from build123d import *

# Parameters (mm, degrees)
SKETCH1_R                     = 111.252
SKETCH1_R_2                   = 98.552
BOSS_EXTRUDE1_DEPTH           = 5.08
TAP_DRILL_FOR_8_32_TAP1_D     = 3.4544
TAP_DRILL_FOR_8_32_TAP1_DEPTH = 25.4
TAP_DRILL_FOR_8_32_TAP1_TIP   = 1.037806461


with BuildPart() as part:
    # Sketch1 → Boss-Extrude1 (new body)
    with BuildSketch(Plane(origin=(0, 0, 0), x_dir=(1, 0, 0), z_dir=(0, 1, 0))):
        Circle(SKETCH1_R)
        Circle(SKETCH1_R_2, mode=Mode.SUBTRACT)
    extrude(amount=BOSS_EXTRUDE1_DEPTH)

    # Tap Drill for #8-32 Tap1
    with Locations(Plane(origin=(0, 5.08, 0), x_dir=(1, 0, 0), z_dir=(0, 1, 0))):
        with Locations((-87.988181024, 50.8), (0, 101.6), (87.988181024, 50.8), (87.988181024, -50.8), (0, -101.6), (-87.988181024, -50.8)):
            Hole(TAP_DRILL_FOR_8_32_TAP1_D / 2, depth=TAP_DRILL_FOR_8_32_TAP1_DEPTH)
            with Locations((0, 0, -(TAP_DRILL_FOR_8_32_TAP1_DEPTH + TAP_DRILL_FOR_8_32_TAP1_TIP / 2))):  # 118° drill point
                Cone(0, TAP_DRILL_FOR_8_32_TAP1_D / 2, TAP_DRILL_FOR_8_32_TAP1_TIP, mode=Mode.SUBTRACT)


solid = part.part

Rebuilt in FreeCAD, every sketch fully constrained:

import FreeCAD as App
import Part
import Sketcher

V = App.Vector
Q = App.Units.Quantity

doc = App.newDocument("Part")
body = doc.addObject("PartDesign::Body", "Body")

# Sketch on XZ plane
sketch1 = doc.addObject("Sketcher::SketchObject", "Sketch")
body.addObject(sketch1)
sketch1.AttachmentSupport = (doc.XZ_Plane, [""])
sketch1.MapMode = "FlatFace"
sketch1.addGeometry(Part.Circle(V(0, 0, 0), V(0, 0, 1), 111), False)
sketch1.addGeometry(Part.Circle(V(0, 0, 0), V(0, 0, 1), 99), False)
sketch1.addConstraint(Sketcher.Constraint("Coincident", 0, 3, -1, 1))
sketch1.addConstraint(Sketcher.Constraint("Coincident", 1, 3, -1, 1))
sketch1.addConstraint(Sketcher.Constraint("Diameter", 0, Q("8.76 in")))
sketch1.addConstraint(Sketcher.Constraint("Diameter", 1, Q("7.76 in")))
pad1 = doc.addObject("PartDesign::Pad", "Pad")
body.addObject(pad1)
pad1.Profile = sketch1
pad1.Length = Q("0.2 in")
pad1.Reversed = True

# Sketch on XZ plane
sketch2 = doc.addObject("Sketcher::SketchObject", "Sketch001")
body.addObject(sketch2)
sketch2.AttachmentSupport = (doc.XZ_Plane, [""])
sketch2.MapMode = "FlatFace"
sketch2.AttachmentOffset = App.Placement(V(0, 0, -0.2 * 25.4), App.Rotation())
sketch2.addGeometry(Part.Circle(V(-88, -50.8, 0), V(0, 0, 1), 1.7), False)
sketch2.addGeometry(Part.Circle(V(0, -101.6, 0), V(0, 0, 1), 1.7), False)
sketch2.addGeometry(Part.Circle(V(88, -50.8, 0), V(0, 0, 1), 1.7), False)
sketch2.addGeometry(Part.Circle(V(88, 50.8, 0), V(0, 0, 1), 1.7), False)
sketch2.addGeometry(Part.Circle(V(0, 101.6, 0), V(0, 0, 1), 1.7), False)
sketch2.addGeometry(Part.Circle(V(-88, 50.8, 0), V(0, 0, 1), 1.7), False)
sketch2.addConstraint(Sketcher.Constraint("Equal", 0, 1))
sketch2.addConstraint(Sketcher.Constraint("Equal", 1, 2))
sketch2.addConstraint(Sketcher.Constraint("Equal", 2, 3))
sketch2.addConstraint(Sketcher.Constraint("Equal", 3, 4))
sketch2.addConstraint(Sketcher.Constraint("Equal", 4, 5))
sketch2.addConstraint(Sketcher.Constraint("Symmetric", 0, 3, 3, 3, -1, 1))
sketch2.addConstraint(Sketcher.Constraint("Symmetric", 1, 3, 4, 3, -1, 1))
sketch2.addConstraint(Sketcher.Constraint("Symmetric", 2, 3, 5, 3, -1, 1))
sketch2.addConstraint(Sketcher.Constraint("Symmetric", 0, 3, 2, 3, -2))
sketch2.addConstraint(Sketcher.Constraint("PointOnObject", 1, 3, -2))
sketch2.addConstraint(Sketcher.Constraint("Diameter", 0, Q("0.136 in")))
sketch2.addConstraint(Sketcher.Constraint("DistanceY", 0, 3, -1, 1, Q("2 in")))
sketch2.addConstraint(Sketcher.Constraint("DistanceY", 1, 3, -1, 1, Q("4 in")))
sketch2.addConstraint(Sketcher.Constraint("DistanceX", 0, 3, -1, 1, Q("87.988181 mm")))
doc.recompute()
hole = doc.addObject("PartDesign::Hole", "Hole")
body.addObject(hole)
hole.Profile = sketch2
hole.ThreadType = "None"
hole.Diameter = Q("0.136 in")
hole.DepthType = "Dimension"
hole.Depth = Q("1 in")
hole.DrillPoint = "Angled"
hole.DrillPointAngle = 118
hole.Reversed = True

doc.recompute()
